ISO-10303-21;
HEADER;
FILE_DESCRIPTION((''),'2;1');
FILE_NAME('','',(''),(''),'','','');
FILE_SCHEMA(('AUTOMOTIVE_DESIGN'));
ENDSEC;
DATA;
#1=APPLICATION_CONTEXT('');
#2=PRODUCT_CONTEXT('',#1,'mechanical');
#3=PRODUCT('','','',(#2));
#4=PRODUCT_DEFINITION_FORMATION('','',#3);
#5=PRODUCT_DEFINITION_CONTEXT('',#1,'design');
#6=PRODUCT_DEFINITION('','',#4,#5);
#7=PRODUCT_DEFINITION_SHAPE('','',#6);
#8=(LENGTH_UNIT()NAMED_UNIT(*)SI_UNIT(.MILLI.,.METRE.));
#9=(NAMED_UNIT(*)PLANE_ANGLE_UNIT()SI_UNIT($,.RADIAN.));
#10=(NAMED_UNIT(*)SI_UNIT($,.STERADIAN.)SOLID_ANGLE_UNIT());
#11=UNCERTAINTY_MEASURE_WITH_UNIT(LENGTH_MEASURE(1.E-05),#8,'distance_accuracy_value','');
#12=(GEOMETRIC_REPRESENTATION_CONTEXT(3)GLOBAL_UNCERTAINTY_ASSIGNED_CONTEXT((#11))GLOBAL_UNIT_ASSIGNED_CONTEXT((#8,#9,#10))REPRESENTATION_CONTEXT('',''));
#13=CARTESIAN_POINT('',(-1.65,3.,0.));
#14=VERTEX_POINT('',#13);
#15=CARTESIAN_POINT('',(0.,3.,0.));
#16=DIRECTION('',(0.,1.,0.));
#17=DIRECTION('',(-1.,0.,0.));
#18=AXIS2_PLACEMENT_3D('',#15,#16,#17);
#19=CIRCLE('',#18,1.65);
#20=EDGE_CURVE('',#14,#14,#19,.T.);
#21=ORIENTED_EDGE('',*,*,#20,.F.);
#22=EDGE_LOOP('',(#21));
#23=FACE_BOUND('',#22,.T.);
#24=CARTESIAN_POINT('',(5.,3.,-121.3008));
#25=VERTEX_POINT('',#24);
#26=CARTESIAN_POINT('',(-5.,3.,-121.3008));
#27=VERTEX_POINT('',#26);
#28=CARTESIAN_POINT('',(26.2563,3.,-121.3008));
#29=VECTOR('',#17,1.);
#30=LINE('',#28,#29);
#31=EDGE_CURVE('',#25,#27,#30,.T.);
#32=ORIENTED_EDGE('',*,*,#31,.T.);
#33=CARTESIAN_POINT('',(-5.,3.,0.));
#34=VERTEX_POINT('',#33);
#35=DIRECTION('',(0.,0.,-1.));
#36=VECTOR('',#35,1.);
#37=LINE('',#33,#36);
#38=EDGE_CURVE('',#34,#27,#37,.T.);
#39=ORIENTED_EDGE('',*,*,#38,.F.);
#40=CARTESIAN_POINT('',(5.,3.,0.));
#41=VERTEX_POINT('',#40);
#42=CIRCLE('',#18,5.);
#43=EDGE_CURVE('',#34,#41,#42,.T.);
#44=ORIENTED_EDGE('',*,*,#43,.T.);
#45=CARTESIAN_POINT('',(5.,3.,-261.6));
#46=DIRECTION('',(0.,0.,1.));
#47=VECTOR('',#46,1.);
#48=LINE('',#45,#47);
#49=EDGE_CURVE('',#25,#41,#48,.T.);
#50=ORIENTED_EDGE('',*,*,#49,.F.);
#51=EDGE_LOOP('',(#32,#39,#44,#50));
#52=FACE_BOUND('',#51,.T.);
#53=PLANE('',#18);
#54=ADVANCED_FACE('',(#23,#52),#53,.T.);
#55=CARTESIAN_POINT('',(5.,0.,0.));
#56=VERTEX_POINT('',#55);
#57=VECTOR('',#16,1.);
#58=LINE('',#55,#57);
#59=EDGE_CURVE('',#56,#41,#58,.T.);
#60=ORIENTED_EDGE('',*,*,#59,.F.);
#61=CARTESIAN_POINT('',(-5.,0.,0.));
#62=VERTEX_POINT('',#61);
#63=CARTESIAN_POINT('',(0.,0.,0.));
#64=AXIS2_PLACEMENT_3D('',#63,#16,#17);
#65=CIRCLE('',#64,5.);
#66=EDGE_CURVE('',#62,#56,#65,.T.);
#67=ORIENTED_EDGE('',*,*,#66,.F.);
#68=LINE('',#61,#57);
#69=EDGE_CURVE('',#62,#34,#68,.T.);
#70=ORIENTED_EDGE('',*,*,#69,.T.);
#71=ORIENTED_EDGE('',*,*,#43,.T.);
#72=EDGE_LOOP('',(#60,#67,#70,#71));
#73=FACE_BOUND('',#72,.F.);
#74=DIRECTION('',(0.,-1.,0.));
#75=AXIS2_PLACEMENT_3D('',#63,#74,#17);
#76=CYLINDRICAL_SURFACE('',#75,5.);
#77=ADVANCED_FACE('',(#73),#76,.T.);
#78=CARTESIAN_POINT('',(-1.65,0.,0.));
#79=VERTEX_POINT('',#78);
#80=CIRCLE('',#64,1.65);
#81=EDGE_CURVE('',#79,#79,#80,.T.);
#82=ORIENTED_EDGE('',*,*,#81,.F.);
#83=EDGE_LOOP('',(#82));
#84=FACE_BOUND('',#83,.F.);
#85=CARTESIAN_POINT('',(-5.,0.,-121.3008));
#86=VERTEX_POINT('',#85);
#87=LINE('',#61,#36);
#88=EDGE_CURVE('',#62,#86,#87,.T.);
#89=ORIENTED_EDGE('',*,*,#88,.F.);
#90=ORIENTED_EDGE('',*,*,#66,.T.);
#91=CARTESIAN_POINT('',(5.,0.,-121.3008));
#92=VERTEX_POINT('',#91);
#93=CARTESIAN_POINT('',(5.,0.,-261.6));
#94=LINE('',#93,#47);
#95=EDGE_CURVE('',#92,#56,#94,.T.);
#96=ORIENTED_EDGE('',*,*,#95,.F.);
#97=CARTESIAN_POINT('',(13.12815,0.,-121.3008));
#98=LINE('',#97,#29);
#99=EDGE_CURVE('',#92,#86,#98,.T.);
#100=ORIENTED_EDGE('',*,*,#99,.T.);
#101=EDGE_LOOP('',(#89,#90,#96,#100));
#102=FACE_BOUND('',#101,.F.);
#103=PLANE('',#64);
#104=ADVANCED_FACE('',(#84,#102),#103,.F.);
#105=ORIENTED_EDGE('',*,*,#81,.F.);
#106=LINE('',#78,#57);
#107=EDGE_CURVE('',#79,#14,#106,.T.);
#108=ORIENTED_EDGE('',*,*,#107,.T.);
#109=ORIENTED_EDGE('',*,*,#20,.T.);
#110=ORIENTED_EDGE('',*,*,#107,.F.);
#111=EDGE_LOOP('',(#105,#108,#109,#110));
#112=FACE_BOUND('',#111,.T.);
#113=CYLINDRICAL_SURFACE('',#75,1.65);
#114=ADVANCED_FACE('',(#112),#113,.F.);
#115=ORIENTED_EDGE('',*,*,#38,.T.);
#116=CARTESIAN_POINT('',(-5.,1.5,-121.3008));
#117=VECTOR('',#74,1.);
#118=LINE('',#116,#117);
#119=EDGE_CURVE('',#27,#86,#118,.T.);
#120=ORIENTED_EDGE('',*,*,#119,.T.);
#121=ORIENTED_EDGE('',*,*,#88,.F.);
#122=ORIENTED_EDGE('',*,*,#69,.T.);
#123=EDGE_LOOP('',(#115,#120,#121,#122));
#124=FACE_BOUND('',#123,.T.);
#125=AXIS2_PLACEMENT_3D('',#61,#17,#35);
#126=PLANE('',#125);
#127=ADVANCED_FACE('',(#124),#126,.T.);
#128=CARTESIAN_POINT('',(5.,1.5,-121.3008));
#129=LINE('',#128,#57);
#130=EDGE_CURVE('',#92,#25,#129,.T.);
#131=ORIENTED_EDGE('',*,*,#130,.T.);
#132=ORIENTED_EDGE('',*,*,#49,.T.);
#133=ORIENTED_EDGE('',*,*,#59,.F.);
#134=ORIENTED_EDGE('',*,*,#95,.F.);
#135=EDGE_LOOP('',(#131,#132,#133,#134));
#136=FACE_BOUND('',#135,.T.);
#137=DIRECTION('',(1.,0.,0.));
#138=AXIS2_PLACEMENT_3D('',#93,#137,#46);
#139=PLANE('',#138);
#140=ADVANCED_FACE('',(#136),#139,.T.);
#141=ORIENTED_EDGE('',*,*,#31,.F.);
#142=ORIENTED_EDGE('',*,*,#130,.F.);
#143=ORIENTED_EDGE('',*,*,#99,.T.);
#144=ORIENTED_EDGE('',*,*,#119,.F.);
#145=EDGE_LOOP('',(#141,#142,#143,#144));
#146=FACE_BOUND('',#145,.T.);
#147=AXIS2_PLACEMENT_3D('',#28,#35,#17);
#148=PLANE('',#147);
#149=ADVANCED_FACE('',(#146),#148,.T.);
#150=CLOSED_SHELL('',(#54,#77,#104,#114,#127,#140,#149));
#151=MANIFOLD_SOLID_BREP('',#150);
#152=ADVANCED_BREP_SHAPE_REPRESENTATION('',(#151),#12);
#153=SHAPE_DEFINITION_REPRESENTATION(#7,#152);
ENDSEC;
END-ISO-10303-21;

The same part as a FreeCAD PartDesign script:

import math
import FreeCAD as App
import Part
import Sketcher

doc = App.newDocument("Part")
body = doc.addObject("PartDesign::Body", "Body")

# Sketch on XZ plane
sketch1 = doc.addObject("Sketcher::SketchObject", "Sketch")
body.addObject(sketch1)
sketch1.AttachmentSupport = (doc.XZ_Plane, [""])
sketch1.MapMode = "FlatFace"
sketch1.addGeometry(Part.LineSegment(App.Vector(-5, -261.6, 0), App.Vector(-5, 0, 0)), False)
sketch1.addGeometry(Part.ArcOfCircle(Part.Circle(App.Vector(0, 0, 0), App.Vector(0, 0, 1), 5), math.radians(0), math.radians(180)), False)
sketch1.addGeometry(Part.LineSegment(App.Vector(5, 0, 0), App.Vector(5, -261.6, 0)), False)
sketch1.addGeometry(Part.ArcOfCircle(Part.Circle(App.Vector(0, -261.6, 0), App.Vector(0, 0, 1), 5), math.radians(180), math.radians(360)), False)
sketch1.addGeometry(Part.Circle(App.Vector(0, -261.6, 0), App.Vector(0, 0, 1), 1.65), False)
sketch1.addGeometry(Part.Circle(App.Vector(0, -153.559, 0), App.Vector(0, 0, 1), 1.65), False)
sketch1.addGeometry(Part.Circle(App.Vector(0, 0, 0), App.Vector(0, 0, 1), 1.65), False)
sketch1.addConstraint(Sketcher.Constraint("Tangent", 0, 2, 1, 2))
sketch1.addConstraint(Sketcher.Constraint("Tangent", 1, 1, 2, 1))
sketch1.addConstraint(Sketcher.Constraint("Tangent", 2, 2, 3, 2))
sketch1.addConstraint(Sketcher.Constraint("Tangent", 3, 1, 0, 1))
sketch1.addConstraint(Sketcher.Constraint("Vertical", 0))
sketch1.addConstraint(Sketcher.Constraint("Vertical", 2))
sketch1.addConstraint(Sketcher.Constraint("Coincident", 1, 3, -1, 1))
sketch1.addConstraint(Sketcher.Constraint("Coincident", 6, 3, -1, 1))
sketch1.addConstraint(Sketcher.Constraint("Coincident", 4, 3, 3, 3))
sketch1.addConstraint(Sketcher.Constraint("Equal", 4, 5))
sketch1.addConstraint(Sketcher.Constraint("Equal", 5, 6))
sketch1.addConstraint(Sketcher.Constraint("PointOnObject", 5, 3, -2))
sketch1.addConstraint(Sketcher.Constraint("Radius", 1, 5.0))
sketch1.addConstraint(Sketcher.Constraint("Diameter", 4, 3.3))
sketch1.addConstraint(Sketcher.Constraint("DistanceY", 0, 1, 0, 2, 261.6))
sketch1.addConstraint(Sketcher.Constraint("DistanceY", 5, 3, -1, 1, 153.559))
pad1 = doc.addObject("PartDesign::Pad", "Pad")
body.addObject(pad1)
pad1.Profile = sketch1
pad1.Length = 3
pad1.Reversed = True

# Sketch on XZ plane
sketch2 = doc.addObject("Sketcher::SketchObject", "Sketch001")
body.addObject(sketch2)
sketch2.AttachmentSupport = (doc.XZ_Plane, [""])
sketch2.MapMode = "FlatFace"
sketch2.AttachmentOffset = App.Placement(App.Vector(0, 0, -3), App.Rotation())
sketch2.addGeometry(Part.LineSegment(App.Vector(26.2563, -275.926, 0), App.Vector(-22.4574, -275.926, 0)), False)
sketch2.addGeometry(Part.LineSegment(App.Vector(-22.4574, -275.926, 0), App.Vector(-22.4574, -121.3008, 0)), False)
sketch2.addGeometry(Part.LineSegment(App.Vector(-22.4574, -121.3008, 0), App.Vector(26.2563, -121.3008, 0)), False)
sketch2.addGeometry(Part.LineSegment(App.Vector(26.2563, -121.3008, 0), App.Vector(26.2563, -275.926, 0)), False)
sketch2.addConstraint(Sketcher.Constraint("Coincident", 0, 2, 1, 1))
sketch2.addConstraint(Sketcher.Constraint("Coincident", 1, 2, 2, 1))
sketch2.addConstraint(Sketcher.Constraint("Coincident", 2, 2, 3, 1))
sketch2.addConstraint(Sketcher.Constraint("Coincident", 3, 2, 0, 1))
sketch2.addConstraint(Sketcher.Constraint("Horizontal", 0))
sketch2.addConstraint(Sketcher.Constraint("Vertical", 1))
sketch2.addConstraint(Sketcher.Constraint("Horizontal", 2))
sketch2.addConstraint(Sketcher.Constraint("Vertical", 3))
sketch2.addConstraint(Sketcher.Constraint("DistanceX", 0, 2, 0, 1, 48.7137))
sketch2.addConstraint(Sketcher.Constraint("DistanceY", 1, 1, 1, 2, 154.6252))
sketch2.addConstraint(Sketcher.Constraint("DistanceY", 0, 2, -1, 1, 275.926))
sketch2.addConstraint(Sketcher.Constraint("DistanceX", 0, 2, -1, 1, 22.4574))
pocket1 = doc.addObject("PartDesign::Pocket", "Pocket")
body.addObject(pocket1)
pocket1.Profile = sketch2
pocket1.Length = 100
pocket1.Reversed = True

doc.recompute()
